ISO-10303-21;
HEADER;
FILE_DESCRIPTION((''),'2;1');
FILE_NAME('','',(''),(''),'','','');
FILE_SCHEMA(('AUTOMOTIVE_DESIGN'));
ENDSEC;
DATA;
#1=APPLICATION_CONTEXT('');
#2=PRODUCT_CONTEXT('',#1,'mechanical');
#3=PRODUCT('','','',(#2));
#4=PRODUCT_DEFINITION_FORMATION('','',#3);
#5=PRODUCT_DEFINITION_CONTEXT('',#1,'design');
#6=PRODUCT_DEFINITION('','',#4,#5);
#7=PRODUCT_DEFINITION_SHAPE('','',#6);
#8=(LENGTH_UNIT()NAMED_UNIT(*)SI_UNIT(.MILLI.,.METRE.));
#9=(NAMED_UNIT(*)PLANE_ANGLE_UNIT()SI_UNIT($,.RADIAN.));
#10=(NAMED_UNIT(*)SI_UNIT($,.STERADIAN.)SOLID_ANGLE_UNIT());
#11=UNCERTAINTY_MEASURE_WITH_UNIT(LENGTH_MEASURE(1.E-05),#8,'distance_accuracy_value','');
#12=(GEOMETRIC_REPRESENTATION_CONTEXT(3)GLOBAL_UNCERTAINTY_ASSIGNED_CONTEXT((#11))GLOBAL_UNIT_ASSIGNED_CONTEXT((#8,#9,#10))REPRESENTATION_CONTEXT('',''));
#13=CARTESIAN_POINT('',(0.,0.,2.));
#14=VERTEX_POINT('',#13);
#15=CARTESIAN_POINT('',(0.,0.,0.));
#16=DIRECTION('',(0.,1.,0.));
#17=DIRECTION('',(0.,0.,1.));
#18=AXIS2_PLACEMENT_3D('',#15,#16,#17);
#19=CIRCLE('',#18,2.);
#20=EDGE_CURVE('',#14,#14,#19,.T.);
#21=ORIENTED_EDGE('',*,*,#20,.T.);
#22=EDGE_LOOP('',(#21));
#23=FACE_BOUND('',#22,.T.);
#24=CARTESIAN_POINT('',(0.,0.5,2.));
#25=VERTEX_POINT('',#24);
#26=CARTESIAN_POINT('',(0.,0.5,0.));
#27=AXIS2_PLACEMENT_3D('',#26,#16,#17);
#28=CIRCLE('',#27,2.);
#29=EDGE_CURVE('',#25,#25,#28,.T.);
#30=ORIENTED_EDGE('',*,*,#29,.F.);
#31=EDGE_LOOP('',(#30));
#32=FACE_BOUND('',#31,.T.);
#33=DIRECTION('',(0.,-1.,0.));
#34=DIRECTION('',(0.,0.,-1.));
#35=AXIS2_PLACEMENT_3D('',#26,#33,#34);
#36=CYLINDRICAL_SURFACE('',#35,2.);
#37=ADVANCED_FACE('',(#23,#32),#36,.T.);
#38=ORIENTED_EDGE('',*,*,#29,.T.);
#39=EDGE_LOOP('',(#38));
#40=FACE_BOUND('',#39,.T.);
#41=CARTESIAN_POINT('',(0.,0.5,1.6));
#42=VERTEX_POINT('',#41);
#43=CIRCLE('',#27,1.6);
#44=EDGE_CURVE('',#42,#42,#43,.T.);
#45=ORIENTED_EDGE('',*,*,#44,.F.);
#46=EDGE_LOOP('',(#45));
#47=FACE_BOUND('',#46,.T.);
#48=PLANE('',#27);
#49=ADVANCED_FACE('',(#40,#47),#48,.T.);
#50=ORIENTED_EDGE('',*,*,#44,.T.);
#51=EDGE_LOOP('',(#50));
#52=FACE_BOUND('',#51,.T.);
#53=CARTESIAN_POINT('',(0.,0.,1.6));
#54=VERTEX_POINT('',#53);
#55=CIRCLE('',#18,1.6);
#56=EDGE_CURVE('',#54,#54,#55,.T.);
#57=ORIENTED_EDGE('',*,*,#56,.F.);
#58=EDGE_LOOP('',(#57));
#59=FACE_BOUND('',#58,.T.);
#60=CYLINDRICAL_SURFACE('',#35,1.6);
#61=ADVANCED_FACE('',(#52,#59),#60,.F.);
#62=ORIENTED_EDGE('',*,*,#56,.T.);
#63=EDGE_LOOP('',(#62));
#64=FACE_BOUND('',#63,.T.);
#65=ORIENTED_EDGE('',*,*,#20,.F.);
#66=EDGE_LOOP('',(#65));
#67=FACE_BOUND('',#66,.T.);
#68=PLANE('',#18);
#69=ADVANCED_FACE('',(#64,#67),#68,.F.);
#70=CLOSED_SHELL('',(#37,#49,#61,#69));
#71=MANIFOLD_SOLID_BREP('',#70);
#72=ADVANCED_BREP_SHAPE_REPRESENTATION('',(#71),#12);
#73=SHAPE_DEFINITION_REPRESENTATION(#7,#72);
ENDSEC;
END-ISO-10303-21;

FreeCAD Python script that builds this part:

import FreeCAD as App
import Part
import Sketcher

V = App.Vector
Q = App.Units.Quantity

doc = App.newDocument("Part")
params = doc.addObject("Spreadsheet::Sheet", "Params")
for row, (alias, value) in enumerate([
    ("sketch1_diameter", "4 mm"),
    ("sketch1_diameter2", "3.2 mm"),
    ("pad1_length", "0.5 mm"),
], start=1):
    params.set(f"A{row}", alias)
    params.set(f"B{row}", "=" + value)
    params.setAlias(f"B{row}", alias)

body = doc.addObject("PartDesign::Body", "Body")

sketch1 = body.newObject("Sketcher::SketchObject", "Sketch")
sketch1.AttachmentSupport = (doc.getObject("XZ_Plane"), [""])
sketch1.MapMode = "FlatFace"
sketch1.addGeometry([
    Part.Circle(V(0, 0, 0), V(0, 0, 1), 2),
    Part.Circle(V(0, 0, 0), V(0, 0, 1), 1.6),
], False)
sketch1.addConstraint([
    Sketcher.Constraint("Coincident", 0, 3, -1, 1),
    Sketcher.Constraint("Coincident", 1, 3, -1, 1),
    Sketcher.Constraint("Diameter", 0, Q("4 mm")),
    Sketcher.Constraint("Diameter", 1, Q("3.2 mm")),
])
sketch1.setExpression("Constraints[2]", "Params.sketch1_diameter")
sketch1.setExpression("Constraints[3]", "Params.sketch1_diameter2")
pad1 = body.newObject("PartDesign::Pad", "Pad")
pad1.Profile = sketch1
pad1.setExpression("Length", "Params.pad1_length")
pad1.Reversed = True

doc.recompute()
